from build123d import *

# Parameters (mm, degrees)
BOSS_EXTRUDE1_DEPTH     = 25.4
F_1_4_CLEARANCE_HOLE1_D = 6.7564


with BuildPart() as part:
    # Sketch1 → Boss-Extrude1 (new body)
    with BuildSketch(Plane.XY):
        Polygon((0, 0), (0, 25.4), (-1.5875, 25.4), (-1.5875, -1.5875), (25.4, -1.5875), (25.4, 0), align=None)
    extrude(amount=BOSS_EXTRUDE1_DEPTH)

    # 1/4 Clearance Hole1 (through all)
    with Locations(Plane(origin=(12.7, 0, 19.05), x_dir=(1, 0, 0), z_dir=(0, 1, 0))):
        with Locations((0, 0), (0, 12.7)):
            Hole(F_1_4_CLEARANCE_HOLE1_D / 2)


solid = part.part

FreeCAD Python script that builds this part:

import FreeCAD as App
import Part
import Sketcher

V = App.Vector
Q = App.Units.Quantity

doc = App.newDocument("Part")
params = doc.addObject("Spreadsheet::Sheet", "Params")
for row, (alias, value) in enumerate([
    ("sketch1_width", "1 in"),
    ("sketch1_width2", "0.0625 in"),
    ("pad1_length", "1 in"),
    ("sketch2_diameter", "0.266 in"),
    ("hole_diameter", "0.266 in"),
], start=1):
    params.set(f"A{row}", alias)
    params.set(f"B{row}", "=" + value)
    params.setAlias(f"B{row}", alias)

body = doc.addObject("PartDesign::Body", "Body")

# Sketch on XY plane
sketch1 = body.newObject("Sketcher::SketchObject", "Sketch")
sketch1.AttachmentSupport = (doc.getObject("XY_Plane"), [""])
sketch1.MapMode = "FlatFace"
sketch1.addGeometry([
    Part.LineSegment(V(0, 0, 0), V(0, 25.4, 0)),  # 0
    Part.LineSegment(V(0, 25.4, 0), V(-1.5875, 25.4, 0)),  # 1
    Part.LineSegment(V(-1.5875, 25.4, 0), V(-1.5875, -1.5875, 0)),  # 2
    Part.LineSegment(V(-1.5875, -1.5875, 0), V(25.4, -1.5875, 0)),  # 3
    Part.LineSegment(V(25.4, -1.5875, 0), V(25.4, 0, 0)),  # 4
    Part.LineSegment(V(25.4, 0, 0), V(0, 0, 0)),  # 5
], False)
sketch1.addConstraint([
    Sketcher.Constraint("Coincident", 0, 2, 1, 1),
    Sketcher.Constraint("Coincident", 1, 2, 2, 1),
    Sketcher.Constraint("Coincident", 2, 2, 3, 1),
    Sketcher.Constraint("Coincident", 3, 2, 4, 1),
    Sketcher.Constraint("Coincident", 4, 2, 5, 1),
    Sketcher.Constraint("Coincident", 5, 2, 0, 1),
    Sketcher.Constraint("Vertical", 0),
    Sketcher.Constraint("Horizontal", 1),
    Sketcher.Constraint("Vertical", 2),
    Sketcher.Constraint("Horizontal", 3),
    Sketcher.Constraint("Vertical", 4),
    Sketcher.Constraint("Horizontal", 5),
    Sketcher.Constraint("Coincident", 5, 2, -1, 1),
    Sketcher.Constraint("Equal", 5, 0),
    Sketcher.Constraint("Equal", 3, 2),
    Sketcher.Constraint("DistanceX", 5, 2, 5, 1, Q("1 in")),
    Sketcher.Constraint("DistanceX", 1, 2, 1, 1, Q("0.0625 in")),
])
sketch1.setExpression("Constraints[15]", "Params.sketch1_width")
sketch1.setExpression("Constraints[16]", "Params.sketch1_width2")
pad1 = body.newObject("PartDesign::Pad", "Pad")
pad1.Profile = sketch1
pad1.setExpression("Length", "Params.pad1_length")

# Sketch on XZ plane
sketch2 = body.newObject("Sketcher::SketchObject", "Sketch001")
sketch2.AttachmentSupport = (doc.getObject("XZ_Plane"), [""])
sketch2.MapMode = "FlatFace"
sketch2.addGeometry([
    Part.Circle(V(12.7, 19.05, 0), V(0, 0, 1), 3.3782),
    Part.Circle(V(12.7, 6.35, 0), V(0, 0, 1), 3.3782),
], False)
sketch2.addConstraint([
    Sketcher.Constraint("Equal", 0, 1),
    Sketcher.Constraint("Vertical", 0, 3, 1, 3),
    Sketcher.Constraint("Diameter", 0, Q("0.266 in")),
    Sketcher.Constraint("DistanceX", -1, 1, 0, 3, Q("0.5 in")),
    Sketcher.Constraint("DistanceY", 1, 3, 0, 3, Q("0.5 in")),
    Sketcher.Constraint("DistanceY", -1, 1, 0, 3, Q("0.75 in")),
])
sketch2.setExpression("Constraints[2]", "Params.sketch2_diameter")
doc.recompute()
hole = body.newObject("PartDesign::Hole", "Hole")
hole.Profile = sketch2
hole.ThreadType = "None"
hole.setExpression("Diameter", "Params.hole_diameter")
hole.DepthType = "ThroughAll"
hole.Reversed = True

doc.recompute()
